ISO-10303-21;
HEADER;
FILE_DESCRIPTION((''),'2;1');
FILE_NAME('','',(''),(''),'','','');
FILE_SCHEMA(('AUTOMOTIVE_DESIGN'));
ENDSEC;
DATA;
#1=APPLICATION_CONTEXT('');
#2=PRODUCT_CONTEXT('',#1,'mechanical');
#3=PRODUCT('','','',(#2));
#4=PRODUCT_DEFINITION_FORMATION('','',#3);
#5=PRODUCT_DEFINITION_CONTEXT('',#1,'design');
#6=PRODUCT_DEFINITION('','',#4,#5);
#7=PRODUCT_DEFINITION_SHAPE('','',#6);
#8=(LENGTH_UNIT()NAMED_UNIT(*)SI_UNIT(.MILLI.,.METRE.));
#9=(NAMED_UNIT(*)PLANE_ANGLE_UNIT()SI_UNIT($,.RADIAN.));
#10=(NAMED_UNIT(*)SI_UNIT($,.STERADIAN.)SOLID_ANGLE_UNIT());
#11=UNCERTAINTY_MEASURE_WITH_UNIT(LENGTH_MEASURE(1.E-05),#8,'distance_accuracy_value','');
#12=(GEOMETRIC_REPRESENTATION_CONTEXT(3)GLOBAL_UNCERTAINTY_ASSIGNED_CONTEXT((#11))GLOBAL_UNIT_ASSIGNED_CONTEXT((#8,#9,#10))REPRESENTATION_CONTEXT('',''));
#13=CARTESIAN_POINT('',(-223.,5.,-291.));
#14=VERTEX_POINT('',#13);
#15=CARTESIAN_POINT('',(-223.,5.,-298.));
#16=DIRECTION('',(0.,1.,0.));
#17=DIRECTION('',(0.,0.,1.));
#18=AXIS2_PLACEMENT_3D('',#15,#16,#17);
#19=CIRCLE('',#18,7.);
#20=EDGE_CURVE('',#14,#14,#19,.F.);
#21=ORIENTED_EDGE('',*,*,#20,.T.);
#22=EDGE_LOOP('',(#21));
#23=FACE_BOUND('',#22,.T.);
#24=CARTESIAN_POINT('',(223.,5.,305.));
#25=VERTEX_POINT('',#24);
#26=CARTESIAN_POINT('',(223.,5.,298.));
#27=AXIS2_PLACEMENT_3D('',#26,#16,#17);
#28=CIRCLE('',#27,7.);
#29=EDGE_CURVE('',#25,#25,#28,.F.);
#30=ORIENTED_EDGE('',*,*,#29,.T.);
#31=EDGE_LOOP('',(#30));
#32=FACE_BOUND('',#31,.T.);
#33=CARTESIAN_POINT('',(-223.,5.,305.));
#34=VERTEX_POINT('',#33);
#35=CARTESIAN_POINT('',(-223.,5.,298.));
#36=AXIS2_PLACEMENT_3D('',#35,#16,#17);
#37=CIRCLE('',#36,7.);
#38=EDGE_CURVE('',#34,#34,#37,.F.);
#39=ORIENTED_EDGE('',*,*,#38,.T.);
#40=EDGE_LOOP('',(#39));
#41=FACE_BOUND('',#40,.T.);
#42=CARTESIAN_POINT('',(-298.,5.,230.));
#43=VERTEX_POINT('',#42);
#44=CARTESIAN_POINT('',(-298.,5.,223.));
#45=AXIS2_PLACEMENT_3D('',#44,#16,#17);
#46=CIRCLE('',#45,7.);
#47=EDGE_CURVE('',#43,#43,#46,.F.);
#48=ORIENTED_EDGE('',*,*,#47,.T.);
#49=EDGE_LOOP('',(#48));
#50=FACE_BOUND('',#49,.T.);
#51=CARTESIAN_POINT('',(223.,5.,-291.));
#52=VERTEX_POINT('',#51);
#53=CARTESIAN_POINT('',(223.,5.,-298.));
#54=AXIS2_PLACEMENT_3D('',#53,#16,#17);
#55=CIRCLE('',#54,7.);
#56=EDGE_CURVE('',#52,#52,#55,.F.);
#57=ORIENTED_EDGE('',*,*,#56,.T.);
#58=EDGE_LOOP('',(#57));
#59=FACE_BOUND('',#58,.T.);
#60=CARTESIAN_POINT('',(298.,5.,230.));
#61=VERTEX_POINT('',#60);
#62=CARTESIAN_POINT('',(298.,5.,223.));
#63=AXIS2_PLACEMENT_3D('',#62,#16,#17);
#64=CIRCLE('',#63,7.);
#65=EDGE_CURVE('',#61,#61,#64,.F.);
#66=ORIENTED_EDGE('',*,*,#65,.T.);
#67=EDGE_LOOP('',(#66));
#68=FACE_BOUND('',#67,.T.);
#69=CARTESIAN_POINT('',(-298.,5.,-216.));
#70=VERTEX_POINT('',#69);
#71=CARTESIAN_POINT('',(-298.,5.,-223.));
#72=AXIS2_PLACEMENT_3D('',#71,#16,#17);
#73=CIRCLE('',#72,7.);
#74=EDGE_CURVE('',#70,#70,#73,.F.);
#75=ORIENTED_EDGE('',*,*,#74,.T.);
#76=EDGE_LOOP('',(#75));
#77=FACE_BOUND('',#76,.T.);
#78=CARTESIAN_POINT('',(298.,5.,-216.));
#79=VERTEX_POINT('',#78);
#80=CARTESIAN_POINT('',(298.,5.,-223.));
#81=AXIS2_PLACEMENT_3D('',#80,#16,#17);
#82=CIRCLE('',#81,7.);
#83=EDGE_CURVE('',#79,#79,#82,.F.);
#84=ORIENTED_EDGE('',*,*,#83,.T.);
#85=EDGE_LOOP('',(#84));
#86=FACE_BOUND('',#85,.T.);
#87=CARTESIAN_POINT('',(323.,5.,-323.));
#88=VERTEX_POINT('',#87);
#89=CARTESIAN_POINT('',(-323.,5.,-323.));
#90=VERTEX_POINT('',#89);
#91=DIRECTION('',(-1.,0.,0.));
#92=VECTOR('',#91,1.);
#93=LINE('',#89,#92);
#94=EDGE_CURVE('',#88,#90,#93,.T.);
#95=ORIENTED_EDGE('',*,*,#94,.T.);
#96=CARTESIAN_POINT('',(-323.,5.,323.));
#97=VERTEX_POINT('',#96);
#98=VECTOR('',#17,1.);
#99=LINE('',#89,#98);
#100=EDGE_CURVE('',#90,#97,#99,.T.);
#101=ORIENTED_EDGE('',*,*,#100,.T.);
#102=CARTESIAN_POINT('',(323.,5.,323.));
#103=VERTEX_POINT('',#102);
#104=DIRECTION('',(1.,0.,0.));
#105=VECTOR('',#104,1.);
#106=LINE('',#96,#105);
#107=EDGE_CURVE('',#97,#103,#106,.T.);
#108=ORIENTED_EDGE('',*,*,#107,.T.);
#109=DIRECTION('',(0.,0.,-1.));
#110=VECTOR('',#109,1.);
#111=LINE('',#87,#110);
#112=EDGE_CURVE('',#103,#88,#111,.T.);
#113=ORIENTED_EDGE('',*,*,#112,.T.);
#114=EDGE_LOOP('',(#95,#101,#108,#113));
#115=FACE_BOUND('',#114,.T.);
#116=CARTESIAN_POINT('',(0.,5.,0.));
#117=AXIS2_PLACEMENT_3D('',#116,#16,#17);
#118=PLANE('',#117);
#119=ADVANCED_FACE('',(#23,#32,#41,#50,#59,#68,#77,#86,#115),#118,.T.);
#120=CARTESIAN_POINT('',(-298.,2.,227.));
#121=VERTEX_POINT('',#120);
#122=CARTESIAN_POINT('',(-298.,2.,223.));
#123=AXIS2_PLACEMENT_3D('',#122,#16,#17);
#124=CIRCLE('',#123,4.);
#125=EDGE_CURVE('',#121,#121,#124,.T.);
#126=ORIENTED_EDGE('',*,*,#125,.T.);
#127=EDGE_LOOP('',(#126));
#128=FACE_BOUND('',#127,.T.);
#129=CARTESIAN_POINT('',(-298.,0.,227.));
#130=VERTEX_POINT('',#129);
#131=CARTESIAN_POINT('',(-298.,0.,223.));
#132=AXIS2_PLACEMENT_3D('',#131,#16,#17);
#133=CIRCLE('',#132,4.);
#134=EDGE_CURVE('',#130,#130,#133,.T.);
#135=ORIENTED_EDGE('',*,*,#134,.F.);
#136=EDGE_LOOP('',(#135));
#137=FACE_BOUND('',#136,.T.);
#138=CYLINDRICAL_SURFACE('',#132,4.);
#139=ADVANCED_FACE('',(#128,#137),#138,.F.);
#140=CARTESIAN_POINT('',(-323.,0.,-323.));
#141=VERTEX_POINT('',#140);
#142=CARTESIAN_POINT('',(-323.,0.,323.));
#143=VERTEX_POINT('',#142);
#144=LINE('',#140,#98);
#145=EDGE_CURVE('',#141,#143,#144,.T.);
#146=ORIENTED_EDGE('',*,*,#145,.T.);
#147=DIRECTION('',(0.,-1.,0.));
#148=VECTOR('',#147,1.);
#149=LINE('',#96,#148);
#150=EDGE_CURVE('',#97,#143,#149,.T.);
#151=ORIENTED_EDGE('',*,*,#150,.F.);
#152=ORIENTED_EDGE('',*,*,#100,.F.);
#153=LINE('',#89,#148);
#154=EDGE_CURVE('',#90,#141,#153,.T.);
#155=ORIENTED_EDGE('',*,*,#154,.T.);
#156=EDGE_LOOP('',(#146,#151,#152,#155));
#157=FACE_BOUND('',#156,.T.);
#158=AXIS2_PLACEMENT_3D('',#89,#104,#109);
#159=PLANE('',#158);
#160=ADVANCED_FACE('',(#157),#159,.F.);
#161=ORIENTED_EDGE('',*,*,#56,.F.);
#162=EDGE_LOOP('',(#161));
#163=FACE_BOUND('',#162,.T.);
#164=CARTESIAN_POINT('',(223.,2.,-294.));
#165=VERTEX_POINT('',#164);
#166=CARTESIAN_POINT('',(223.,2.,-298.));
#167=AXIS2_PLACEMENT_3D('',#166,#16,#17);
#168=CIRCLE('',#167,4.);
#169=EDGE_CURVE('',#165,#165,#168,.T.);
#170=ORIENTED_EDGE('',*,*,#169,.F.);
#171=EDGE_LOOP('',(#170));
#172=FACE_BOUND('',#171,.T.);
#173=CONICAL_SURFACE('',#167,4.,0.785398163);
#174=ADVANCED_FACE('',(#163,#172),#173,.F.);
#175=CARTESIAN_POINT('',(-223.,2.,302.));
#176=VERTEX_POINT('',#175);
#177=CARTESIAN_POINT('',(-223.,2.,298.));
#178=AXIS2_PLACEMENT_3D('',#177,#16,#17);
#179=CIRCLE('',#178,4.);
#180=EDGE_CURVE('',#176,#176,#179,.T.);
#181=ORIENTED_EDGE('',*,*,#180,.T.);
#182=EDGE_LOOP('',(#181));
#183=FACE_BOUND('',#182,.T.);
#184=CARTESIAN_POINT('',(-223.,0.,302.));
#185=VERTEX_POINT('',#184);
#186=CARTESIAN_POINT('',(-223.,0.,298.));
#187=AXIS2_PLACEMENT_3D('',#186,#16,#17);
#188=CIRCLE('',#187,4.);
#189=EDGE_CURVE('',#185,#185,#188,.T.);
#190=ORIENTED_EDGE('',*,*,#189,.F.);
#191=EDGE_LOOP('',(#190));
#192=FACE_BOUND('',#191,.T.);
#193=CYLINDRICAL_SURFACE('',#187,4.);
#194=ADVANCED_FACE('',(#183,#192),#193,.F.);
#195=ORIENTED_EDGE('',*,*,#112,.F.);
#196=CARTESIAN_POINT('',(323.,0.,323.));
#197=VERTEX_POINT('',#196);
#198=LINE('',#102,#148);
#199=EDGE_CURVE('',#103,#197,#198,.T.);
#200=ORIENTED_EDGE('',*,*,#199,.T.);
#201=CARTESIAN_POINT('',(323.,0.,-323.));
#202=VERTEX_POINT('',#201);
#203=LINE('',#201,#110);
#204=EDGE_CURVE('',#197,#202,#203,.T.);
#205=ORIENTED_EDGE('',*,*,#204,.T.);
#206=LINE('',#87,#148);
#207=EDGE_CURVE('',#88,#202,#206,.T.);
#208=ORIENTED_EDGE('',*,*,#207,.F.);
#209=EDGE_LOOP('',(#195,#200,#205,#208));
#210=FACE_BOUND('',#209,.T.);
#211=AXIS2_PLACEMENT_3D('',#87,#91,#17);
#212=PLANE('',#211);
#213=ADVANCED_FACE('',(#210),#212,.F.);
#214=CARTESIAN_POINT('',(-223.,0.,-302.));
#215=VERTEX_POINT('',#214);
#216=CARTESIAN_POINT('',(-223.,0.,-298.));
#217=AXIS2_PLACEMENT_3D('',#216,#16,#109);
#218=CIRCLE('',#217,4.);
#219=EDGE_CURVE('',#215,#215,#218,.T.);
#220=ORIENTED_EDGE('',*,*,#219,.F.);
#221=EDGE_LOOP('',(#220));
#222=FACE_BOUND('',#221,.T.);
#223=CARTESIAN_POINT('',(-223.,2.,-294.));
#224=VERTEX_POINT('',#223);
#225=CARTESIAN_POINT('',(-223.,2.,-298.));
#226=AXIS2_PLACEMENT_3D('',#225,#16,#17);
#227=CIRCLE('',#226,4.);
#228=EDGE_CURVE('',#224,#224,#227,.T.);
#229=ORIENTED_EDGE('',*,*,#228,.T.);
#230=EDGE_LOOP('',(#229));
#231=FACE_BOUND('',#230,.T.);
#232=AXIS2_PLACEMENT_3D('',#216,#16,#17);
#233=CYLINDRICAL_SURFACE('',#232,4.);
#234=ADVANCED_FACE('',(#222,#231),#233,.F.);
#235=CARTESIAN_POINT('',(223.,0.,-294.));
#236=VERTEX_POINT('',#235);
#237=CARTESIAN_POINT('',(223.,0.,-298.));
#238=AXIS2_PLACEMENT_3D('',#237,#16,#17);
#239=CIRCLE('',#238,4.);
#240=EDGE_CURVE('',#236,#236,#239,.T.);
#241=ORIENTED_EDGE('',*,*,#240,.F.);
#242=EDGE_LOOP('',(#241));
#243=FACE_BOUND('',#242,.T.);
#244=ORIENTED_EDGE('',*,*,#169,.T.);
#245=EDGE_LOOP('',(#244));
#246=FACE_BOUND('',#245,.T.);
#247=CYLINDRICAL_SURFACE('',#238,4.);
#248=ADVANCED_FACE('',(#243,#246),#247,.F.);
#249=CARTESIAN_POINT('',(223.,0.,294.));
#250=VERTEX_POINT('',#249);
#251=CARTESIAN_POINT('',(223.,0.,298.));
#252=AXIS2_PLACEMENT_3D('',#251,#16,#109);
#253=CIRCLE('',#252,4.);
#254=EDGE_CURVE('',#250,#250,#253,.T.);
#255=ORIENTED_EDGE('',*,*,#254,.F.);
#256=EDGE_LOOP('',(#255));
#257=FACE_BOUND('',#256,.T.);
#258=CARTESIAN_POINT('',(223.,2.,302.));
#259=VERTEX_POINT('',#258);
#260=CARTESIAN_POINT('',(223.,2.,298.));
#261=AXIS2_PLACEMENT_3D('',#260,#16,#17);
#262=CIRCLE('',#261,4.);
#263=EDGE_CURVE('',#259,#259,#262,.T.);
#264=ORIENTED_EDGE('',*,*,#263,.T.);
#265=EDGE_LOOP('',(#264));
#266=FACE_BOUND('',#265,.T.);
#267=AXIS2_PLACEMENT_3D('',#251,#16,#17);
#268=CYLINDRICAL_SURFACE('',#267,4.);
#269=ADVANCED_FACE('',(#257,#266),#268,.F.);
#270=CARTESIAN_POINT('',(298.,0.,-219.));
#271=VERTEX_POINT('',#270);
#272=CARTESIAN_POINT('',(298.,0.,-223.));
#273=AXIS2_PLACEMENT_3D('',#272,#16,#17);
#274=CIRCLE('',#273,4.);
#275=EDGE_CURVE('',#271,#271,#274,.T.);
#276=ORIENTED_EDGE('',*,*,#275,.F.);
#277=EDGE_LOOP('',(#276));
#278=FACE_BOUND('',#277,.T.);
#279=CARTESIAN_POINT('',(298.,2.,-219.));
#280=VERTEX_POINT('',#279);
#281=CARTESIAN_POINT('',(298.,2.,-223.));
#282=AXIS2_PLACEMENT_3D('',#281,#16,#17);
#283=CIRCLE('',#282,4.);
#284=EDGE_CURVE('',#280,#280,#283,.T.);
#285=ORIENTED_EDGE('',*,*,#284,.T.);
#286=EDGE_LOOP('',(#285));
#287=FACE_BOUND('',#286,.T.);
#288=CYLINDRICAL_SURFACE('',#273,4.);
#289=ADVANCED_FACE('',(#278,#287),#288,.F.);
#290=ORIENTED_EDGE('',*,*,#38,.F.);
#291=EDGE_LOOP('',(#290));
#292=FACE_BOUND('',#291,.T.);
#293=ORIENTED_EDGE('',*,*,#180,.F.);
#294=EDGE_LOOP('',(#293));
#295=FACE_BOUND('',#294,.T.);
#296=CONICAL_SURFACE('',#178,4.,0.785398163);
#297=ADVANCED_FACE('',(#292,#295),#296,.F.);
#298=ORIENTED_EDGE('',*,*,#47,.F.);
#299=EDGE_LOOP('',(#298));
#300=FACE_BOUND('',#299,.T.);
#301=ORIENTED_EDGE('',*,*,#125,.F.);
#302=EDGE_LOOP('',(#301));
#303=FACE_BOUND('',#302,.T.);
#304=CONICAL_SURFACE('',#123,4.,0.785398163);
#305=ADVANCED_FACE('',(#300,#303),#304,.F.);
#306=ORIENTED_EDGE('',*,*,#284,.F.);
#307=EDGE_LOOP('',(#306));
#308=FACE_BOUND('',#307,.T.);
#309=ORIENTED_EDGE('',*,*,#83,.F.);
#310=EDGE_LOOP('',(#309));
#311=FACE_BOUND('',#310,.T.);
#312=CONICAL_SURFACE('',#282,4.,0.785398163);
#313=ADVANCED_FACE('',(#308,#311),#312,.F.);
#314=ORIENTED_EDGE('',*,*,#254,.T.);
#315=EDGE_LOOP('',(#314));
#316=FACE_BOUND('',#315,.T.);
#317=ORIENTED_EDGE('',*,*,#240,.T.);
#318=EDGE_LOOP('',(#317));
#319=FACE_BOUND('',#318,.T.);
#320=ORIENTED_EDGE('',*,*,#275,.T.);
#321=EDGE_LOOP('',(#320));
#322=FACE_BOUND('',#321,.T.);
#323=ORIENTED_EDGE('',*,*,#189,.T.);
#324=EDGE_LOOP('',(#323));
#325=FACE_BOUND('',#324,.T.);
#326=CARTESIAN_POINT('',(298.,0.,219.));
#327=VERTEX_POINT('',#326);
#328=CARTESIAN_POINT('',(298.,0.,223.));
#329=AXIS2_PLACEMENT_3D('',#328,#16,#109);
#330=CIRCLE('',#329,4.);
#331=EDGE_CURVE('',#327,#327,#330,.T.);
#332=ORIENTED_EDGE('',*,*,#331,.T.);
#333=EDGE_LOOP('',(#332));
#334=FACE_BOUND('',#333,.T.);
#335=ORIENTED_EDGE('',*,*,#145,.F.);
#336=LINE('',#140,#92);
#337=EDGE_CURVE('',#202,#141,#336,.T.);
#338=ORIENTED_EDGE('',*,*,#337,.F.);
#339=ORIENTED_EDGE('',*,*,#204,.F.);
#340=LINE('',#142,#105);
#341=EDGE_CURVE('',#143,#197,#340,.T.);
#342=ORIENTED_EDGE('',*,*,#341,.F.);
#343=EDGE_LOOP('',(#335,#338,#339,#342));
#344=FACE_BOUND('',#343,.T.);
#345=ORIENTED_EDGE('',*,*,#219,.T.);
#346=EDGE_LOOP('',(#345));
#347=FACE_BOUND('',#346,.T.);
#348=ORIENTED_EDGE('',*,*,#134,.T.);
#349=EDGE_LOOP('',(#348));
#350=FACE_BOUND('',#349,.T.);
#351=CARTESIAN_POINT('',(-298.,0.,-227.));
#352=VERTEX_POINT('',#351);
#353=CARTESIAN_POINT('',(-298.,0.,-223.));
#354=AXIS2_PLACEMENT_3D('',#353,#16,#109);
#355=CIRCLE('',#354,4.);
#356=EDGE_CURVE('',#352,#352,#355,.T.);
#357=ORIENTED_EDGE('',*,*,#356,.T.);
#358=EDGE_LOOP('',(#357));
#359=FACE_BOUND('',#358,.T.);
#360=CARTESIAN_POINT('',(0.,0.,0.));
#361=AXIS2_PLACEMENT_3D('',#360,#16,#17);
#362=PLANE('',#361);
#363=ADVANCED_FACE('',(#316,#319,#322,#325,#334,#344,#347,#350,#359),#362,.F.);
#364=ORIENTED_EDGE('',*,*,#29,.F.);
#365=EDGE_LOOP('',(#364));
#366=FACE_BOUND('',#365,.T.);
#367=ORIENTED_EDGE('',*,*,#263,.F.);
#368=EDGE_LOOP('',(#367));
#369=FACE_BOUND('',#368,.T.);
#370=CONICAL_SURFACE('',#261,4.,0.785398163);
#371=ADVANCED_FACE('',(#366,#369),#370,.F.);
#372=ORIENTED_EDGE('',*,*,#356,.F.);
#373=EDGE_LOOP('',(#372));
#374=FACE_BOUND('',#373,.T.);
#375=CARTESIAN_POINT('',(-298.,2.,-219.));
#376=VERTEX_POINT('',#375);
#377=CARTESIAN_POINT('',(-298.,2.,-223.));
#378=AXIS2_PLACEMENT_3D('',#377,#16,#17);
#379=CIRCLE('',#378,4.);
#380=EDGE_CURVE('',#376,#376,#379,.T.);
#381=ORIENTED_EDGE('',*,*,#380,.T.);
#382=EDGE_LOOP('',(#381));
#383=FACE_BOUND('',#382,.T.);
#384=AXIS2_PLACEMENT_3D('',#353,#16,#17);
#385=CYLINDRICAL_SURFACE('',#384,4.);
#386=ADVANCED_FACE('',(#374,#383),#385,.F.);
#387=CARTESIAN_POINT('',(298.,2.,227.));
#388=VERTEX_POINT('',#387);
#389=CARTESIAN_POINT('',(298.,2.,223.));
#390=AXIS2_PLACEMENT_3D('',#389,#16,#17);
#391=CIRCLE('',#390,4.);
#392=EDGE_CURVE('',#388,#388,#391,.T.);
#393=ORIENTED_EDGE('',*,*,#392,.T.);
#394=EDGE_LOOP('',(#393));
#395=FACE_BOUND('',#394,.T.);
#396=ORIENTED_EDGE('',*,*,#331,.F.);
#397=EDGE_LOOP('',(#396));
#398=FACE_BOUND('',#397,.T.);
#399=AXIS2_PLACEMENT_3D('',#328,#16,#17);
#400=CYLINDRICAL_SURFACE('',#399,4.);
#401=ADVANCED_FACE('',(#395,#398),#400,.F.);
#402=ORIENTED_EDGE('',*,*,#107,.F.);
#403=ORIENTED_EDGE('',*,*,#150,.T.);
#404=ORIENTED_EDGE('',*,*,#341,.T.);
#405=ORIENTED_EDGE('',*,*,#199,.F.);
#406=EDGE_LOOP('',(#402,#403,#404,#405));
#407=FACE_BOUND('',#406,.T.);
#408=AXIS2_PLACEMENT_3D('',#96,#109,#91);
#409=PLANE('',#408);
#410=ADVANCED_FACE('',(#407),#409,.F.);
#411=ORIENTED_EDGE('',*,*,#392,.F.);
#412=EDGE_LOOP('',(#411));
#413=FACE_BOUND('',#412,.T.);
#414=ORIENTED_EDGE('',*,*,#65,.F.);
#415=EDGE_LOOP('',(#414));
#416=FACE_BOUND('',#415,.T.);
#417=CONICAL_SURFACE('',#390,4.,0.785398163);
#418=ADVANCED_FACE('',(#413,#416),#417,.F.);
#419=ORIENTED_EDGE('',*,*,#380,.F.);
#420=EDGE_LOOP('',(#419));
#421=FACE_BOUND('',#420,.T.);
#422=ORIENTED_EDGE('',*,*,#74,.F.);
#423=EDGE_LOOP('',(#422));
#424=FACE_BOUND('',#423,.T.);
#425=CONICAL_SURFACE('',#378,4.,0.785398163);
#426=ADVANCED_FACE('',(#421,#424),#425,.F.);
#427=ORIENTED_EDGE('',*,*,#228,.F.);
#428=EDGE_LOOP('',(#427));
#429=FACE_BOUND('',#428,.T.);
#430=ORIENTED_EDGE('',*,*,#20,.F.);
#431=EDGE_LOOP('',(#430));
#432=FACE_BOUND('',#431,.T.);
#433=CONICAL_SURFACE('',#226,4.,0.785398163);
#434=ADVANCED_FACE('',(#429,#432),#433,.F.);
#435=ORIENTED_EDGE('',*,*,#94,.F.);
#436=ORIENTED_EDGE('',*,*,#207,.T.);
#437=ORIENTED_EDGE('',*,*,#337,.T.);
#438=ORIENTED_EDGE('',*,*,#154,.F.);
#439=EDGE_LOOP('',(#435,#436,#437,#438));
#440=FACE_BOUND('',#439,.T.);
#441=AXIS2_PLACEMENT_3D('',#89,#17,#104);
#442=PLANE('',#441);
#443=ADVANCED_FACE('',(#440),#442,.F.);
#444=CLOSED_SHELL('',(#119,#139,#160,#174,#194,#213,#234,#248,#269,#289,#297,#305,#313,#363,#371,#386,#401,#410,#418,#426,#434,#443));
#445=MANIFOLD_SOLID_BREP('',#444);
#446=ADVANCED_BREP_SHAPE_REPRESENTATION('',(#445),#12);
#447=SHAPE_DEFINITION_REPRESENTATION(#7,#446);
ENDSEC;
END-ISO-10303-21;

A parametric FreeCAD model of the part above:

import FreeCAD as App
import Part
import Sketcher
Q = App.Units.Quantity


def edges_at(feature, points):
    """Names of the edges that pass closest to the given points."""
    edges = feature.Shape.Edges
    near = lambda p: min(range(len(edges)), key=lambda i: edges[i].distToShape(Part.Vertex(*p))[0])
    return sorted({f"Edge{near(p) + 1}" for p in points})


def add_polygon(sketch, points):
    """Adds a closed chain of lines whose ends are joined by coincident constraints."""
    first, n = sketch.GeometryCount, len(points)
    for a, b in zip(points, points[1:] + points[:1]):
        sketch.addGeometry(Part.LineSegment(App.Vector(*a, 0), App.Vector(*b, 0)), False)
    for i in range(n):
        sketch.addConstraint(Sketcher.Constraint("Coincident", first + i, 2, first + (i + 1) % n, 1))

doc = App.newDocument("Part")
params = doc.addObject("Spreadsheet::Sheet", "Params")
for row, (alias, value) in enumerate([
    ("sketch1_width", "646 mm"),
    ("pad1_length", "5 mm"),
    ("sketch2_diameter", "8 mm"),
    ("chamfer_size", "3 mm"),
], start=1):
    params.set(f"A{row}", alias)
    params.set(f"B{row}", "=" + value)
    params.setAlias(f"B{row}", alias)

body = doc.addObject("PartDesign::Body", "Body")

# Sketch on XZ plane
sketch1 = body.newObject("Sketcher::SketchObject", "Sketch")
sketch1.AttachmentSupport = (doc.getObject("XZ_Plane"), [""])
sketch1.MapMode = "FlatFace"
add_polygon(sketch1, [(-323, -323), (-323, 323), (323, 323), (323, -323)])  # lines 0-3
sketch1.addConstraint(Sketcher.Constraint("Vertical", 0))
sketch1.addConstraint(Sketcher.Constraint("Horizontal", 1))
sketch1.addConstraint(Sketcher.Constraint("Vertical", 2))
sketch1.addConstraint(Sketcher.Constraint("Horizontal", 3))
sketch1.addConstraint(Sketcher.Constraint("Symmetric", 0, 2, 2, 2, -1, 1))
sketch1.addConstraint(Sketcher.Constraint("Equal", 3, 0))
sketch1.addConstraint(Sketcher.Constraint("DistanceX", 1, 1, 1, 2, Q("646 mm")))
sketch1.setExpression("Constraints[10]", "Params.sketch1_width")
pad1 = body.newObject("PartDesign::Pad", "Pad")
pad1.Profile = sketch1
pad1.setExpression("Length", "Params.pad1_length")
pad1.Reversed = True

# Sketch on XZ plane
sketch2 = body.newObject("Sketcher::SketchObject", "Sketch001")
sketch2.AttachmentSupport = (doc.getObject("XZ_Plane"), [""])
sketch2.MapMode = "FlatFace"
sketch2.AttachmentOffset = App.Placement(App.Vector(0, 0, -5), App.Rotation())
sketch2.addGeometry(Part.Circle(App.Vector(-223, 298, 0), App.Vector(0, 0, 1), 4), False)
sketch2.addGeometry(Part.Circle(App.Vector(223, 298, 0), App.Vector(0, 0, 1), 4), False)
sketch2.addGeometry(Part.Circle(App.Vector(-298, 223, 0), App.Vector(0, 0, 1), 4), False)
sketch2.addGeometry(Part.Circle(App.Vector(298, 223, 0), App.Vector(0, 0, 1), 4), False)
sketch2.addGeometry(Part.Circle(App.Vector(298, -223, 0), App.Vector(0, 0, 1), 4), False)
sketch2.addGeometry(Part.Circle(App.Vector(223, -298, 0), App.Vector(0, 0, 1), 4), False)
sketch2.addGeometry(Part.Circle(App.Vector(-223, -298, 0), App.Vector(0, 0, 1), 4), False)
sketch2.addGeometry(Part.Circle(App.Vector(-298, -223, 0), App.Vector(0, 0, 1), 4), False)
sketch2.addConstraint(Sketcher.Constraint("Equal", 0, 1))
sketch2.addConstraint(Sketcher.Constraint("Equal", 1, 2))
sketch2.addConstraint(Sketcher.Constraint("Equal", 2, 3))
sketch2.addConstraint(Sketcher.Constraint("Equal", 3, 4))
sketch2.addConstraint(Sketcher.Constraint("Equal", 4, 5))
sketch2.addConstraint(Sketcher.Constraint("Equal", 5, 6))
sketch2.addConstraint(Sketcher.Constraint("Equal", 6, 7))
sketch2.addConstraint(Sketcher.Constraint("Symmetric", 2, 3, 4, 3, -1, 1))
sketch2.addConstraint(Sketcher.Constraint("Symmetric", 0, 3, 5, 3, -1, 1))
sketch2.addConstraint(Sketcher.Constraint("Symmetric", 1, 3, 6, 3, -1, 1))
sketch2.addConstraint(Sketcher.Constraint("Symmetric", 3, 3, 7, 3, -1, 1))
sketch2.addConstraint(Sketcher.Constraint("Symmetric", 0, 3, 1, 3, -2))
sketch2.addConstraint(Sketcher.Constraint("Symmetric", 2, 3, 3, 3, -2))
sketch2.addConstraint(Sketcher.Constraint("Diameter", 0, Q("8 mm")))
sketch2.addConstraint(Sketcher.Constraint("DistanceX", 0, 3, -1, 1, Q("223 mm")))
sketch2.addConstraint(Sketcher.Constraint("DistanceY", -1, 1, 0, 3, Q("298 mm")))
sketch2.addConstraint(Sketcher.Constraint("DistanceX", 2, 3, -1, 1, Q("298 mm")))
sketch2.addConstraint(Sketcher.Constraint("DistanceY", -1, 1, 2, 3, Q("223 mm")))
sketch2.setExpression("Constraints[13]", "Params.sketch2_diameter")
pocket1 = body.newObject("PartDesign::Pocket", "Pocket")
pocket1.Profile = sketch2
pocket1.Type = "ThroughAll"
pocket1.Reversed = True
doc.recompute()

chamfer = body.newObject("PartDesign::Chamfer", "Chamfer")
chamfer.Base = (pocket1, edges_at(pocket1, [
    (-227, 5, 298),
    (219, 5, 298),
    (-302, 5, 223),
    (294, 5, 223),
    (294, 5, -223),
    (219, 5, -298),
    (-227, 5, -298),
    (-302, 5, -223),
]))
chamfer.setExpression("Size", "Params.chamfer_size")

doc.recompute()
